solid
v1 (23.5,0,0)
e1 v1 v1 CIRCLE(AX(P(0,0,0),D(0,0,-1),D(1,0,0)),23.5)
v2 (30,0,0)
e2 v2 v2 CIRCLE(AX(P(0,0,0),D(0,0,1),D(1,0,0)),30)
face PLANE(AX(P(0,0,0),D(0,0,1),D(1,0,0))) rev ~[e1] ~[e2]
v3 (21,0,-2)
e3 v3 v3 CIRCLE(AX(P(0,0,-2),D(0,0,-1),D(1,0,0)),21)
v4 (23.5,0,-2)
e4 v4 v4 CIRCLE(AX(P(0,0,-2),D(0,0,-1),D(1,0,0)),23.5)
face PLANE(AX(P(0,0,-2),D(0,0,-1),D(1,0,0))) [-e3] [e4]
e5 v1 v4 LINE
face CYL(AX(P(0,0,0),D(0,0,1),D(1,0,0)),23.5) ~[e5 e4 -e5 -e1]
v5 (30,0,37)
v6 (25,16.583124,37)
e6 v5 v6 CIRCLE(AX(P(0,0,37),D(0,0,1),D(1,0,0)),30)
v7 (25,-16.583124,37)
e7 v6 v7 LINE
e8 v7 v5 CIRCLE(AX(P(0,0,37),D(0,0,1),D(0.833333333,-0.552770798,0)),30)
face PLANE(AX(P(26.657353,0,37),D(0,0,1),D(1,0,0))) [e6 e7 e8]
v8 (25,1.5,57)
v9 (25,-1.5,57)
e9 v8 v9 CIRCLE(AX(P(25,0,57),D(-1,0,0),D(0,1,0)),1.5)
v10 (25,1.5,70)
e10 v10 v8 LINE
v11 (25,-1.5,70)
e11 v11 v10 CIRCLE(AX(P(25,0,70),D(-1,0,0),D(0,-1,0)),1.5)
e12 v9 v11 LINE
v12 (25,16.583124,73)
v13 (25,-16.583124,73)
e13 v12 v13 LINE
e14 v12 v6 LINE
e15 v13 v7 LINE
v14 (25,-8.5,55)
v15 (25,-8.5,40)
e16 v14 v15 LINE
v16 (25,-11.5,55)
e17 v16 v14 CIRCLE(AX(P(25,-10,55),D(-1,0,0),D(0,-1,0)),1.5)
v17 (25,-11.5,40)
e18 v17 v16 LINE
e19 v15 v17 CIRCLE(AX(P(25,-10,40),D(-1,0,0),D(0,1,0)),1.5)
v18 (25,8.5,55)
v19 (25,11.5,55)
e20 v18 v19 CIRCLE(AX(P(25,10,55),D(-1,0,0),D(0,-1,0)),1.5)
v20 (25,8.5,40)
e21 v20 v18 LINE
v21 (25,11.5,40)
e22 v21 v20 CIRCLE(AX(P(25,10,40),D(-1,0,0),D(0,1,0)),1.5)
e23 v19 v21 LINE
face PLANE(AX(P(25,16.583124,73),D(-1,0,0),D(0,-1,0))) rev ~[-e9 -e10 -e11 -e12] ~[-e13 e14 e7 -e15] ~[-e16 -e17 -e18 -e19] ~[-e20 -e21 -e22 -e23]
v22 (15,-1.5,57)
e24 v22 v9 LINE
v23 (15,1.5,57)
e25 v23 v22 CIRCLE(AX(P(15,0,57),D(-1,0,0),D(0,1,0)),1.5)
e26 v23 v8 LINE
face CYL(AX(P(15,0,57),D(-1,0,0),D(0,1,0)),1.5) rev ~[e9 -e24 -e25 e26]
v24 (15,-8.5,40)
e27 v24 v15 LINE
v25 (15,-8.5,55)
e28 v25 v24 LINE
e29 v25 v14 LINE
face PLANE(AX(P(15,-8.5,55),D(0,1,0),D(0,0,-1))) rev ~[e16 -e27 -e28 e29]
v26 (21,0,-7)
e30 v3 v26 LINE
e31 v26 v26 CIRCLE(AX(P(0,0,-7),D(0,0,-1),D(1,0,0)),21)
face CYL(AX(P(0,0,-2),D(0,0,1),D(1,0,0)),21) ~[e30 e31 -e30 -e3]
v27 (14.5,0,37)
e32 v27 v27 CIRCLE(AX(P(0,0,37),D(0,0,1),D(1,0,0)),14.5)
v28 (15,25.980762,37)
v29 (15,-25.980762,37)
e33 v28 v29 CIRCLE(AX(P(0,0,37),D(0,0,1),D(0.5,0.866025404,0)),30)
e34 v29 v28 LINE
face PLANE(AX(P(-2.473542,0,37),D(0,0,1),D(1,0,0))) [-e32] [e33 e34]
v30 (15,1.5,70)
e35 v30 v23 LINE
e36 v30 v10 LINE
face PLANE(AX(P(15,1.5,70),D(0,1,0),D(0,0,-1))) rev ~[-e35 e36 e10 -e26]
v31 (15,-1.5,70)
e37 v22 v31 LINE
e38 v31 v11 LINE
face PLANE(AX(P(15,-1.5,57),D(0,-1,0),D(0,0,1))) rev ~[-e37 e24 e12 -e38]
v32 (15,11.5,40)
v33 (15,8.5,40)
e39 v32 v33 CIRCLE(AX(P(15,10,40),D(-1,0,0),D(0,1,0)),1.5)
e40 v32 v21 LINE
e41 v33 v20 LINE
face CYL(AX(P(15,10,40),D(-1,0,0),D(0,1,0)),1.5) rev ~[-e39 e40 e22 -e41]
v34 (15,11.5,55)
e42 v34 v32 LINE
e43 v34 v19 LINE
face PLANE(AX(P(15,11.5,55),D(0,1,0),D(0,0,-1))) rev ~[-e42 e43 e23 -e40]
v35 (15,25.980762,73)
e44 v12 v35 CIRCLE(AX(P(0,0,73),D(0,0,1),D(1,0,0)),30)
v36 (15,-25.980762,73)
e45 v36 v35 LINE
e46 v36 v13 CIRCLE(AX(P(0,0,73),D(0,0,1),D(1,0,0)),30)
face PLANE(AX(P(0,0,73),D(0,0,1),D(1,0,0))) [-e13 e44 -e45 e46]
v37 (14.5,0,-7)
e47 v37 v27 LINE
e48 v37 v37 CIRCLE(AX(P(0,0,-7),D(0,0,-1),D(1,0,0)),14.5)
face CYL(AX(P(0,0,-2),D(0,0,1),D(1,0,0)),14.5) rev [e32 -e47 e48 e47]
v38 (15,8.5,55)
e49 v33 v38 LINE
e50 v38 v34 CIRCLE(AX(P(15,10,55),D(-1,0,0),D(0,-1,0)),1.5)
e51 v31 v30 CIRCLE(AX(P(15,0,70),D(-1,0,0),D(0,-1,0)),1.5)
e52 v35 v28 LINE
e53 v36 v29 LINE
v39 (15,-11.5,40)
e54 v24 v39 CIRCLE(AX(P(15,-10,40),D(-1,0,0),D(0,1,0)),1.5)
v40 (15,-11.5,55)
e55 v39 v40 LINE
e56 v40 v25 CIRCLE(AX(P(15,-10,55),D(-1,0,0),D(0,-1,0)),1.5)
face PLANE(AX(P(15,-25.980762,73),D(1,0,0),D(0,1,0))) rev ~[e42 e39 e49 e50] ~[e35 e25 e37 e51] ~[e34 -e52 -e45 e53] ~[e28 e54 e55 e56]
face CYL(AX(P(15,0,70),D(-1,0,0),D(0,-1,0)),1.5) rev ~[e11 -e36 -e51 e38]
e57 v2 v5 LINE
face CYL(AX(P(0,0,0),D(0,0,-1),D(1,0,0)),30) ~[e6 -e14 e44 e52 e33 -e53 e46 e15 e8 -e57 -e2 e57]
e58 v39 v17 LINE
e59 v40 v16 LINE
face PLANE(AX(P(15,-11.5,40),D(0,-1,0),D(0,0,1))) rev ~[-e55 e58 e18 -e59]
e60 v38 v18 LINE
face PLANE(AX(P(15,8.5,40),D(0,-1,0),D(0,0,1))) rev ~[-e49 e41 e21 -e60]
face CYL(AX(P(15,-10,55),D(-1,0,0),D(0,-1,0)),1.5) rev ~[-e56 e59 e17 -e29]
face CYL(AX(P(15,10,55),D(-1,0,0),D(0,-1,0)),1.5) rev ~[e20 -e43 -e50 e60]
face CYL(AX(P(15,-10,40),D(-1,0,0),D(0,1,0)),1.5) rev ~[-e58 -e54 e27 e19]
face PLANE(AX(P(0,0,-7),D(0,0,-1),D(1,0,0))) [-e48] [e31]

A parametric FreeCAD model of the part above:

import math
import FreeCAD as App
import Part
import Sketcher
from FreeCAD import Vector
Q = App.Units.Quantity

doc = App.newDocument("Part")
body = doc.addObject("PartDesign::Body", "Body")

sketch1 = body.newObject("Sketcher::SketchObject", "Sketch")
sketch1.AttachmentSupport = (doc.getObject("XY_Plane"), [""])
sketch1.MapMode = "FlatFace"
sketch1.addGeometry(Part.Circle(Vector(0, 0, 0), Vector(0, 0, 1), 30), False)
sketch1.addGeometry(Part.Circle(Vector(0, 0, 0), Vector(0, 0, 1), 14), False)
sketch1.addConstraint(Sketcher.Constraint("Coincident", 0, 3, -1, 1))
sketch1.addConstraint(Sketcher.Constraint("Coincident", 1, 3, -1, 1))
sketch1.addConstraint(Sketcher.Constraint("Diameter", 0, Q("60 mm")))
sketch1.addConstraint(Sketcher.Constraint("Diameter", 1, Q("29 mm")))
pad1 = body.newObject("PartDesign::Pad", "Pad")
pad1.Profile = sketch1
pad1.Length = 73

sketch2 = body.newObject("Sketcher::SketchObject", "Sketch001")
sketch2.AttachmentSupport = (doc.getObject("XY_Plane"), [""])
sketch2.MapMode = "FlatFace"
sketch2.addGeometry(Part.Circle(Vector(0, 0, 0), Vector(0, 0, 1), 24), False)
sketch2.addGeometry(Part.Circle(Vector(0, 0, 0), Vector(0, 0, 1), 14), False)
sketch2.addConstraint(Sketcher.Constraint("Coincident", 0, 3, -1, 1))
sketch2.addConstraint(Sketcher.Constraint("Coincident", 1, 3, -1, 1))
sketch2.addConstraint(Sketcher.Constraint("Diameter", 0, Q("47 mm")))
sketch2.addConstraint(Sketcher.Constraint("Diameter", 1, Q("29 mm")))
pad2 = body.newObject("PartDesign::Pad", "Pad001")
pad2.Profile = sketch2
pad2.Length = 2
pad2.Reversed = True

sketch3 = body.newObject("Sketcher::SketchObject", "Sketch002")
sketch3.AttachmentSupport = (doc.getObject("XY_Plane"), [""])
sketch3.MapMode = "FlatFace"
sketch3.AttachmentOffset = App.Placement(Vector(0, 0, -2), App.Rotation())
sketch3.addGeometry(Part.Circle(Vector(0, 0, 0), Vector(0, 0, 1), 21), False)
sketch3.addGeometry(Part.Circle(Vector(0, 0, 0), Vector(0, 0, 1), 14), False)
sketch3.addConstraint(Sketcher.Constraint("Coincident", 0, 3, -1, 1))
sketch3.addConstraint(Sketcher.Constraint("Coincident", 1, 3, -1, 1))
sketch3.addConstraint(Sketcher.Constraint("Diameter", 0, Q("42 mm")))
sketch3.addConstraint(Sketcher.Constraint("Diameter", 1, Q("29 mm")))
pad3 = body.newObject("PartDesign::Pad", "Pad002")
pad3.Profile = sketch3
pad3.Length = 5
pad3.Reversed = True

sketch4 = body.newObject("Sketcher::SketchObject", "Sketch003")
sketch4.AttachmentSupport = (doc.getObject("XY_Plane"), [""])
sketch4.MapMode = "FlatFace"
sketch4.AttachmentOffset = App.Placement(Vector(0, 0, 73), App.Rotation())
sketch4.addGeometry(Part.LineSegment(Vector(15, -26, 0), Vector(15, 26, 0)), False)
sketch4.addGeometry(Part.ArcOfCircle(Part.Circle(Vector(0, 0, 0), Vector(0, 0, 1), 30), math.radians(60), math.radians(300)), False)
sketch4.addGeometry(Part.Circle(Vector(0, 0, 0), Vector(0, 0, 1), 14), False)
sketch4.addGeometry(Part.ArcOfCircle(Part.Circle(Vector(0, 0, 0), Vector(0, 0, 1), 30), math.radians(0), math.radians(34)), False)
sketch4.addGeometry(Part.LineSegment(Vector(25, 17, 0), Vector(25, -17, 0)), False)
sketch4.addGeometry(Part.ArcOfCircle(Part.Circle(Vector(0, 0, 0), Vector(0, 0, 1), 30), math.radians(-34), math.radians(0)), False)
sketch4.addConstraint(Sketcher.Constraint("Coincident", 0, 1, 1, 2))
sketch4.addConstraint(Sketcher.Constraint("Coincident", 1, 1, 0, 2))
sketch4.addConstraint(Sketcher.Constraint("Coincident", 3, 2, 4, 1))
sketch4.addConstraint(Sketcher.Constraint("Coincident", 4, 2, 5, 1))
sketch4.addConstraint(Sketcher.Constraint("Tangent", 5, 2, 3, 1))
sketch4.addConstraint(Sketcher.Constraint("Vertical", 0))
sketch4.addConstraint(Sketcher.Constraint("Vertical", 4))
sketch4.addConstraint(Sketcher.Constraint("Coincident", 1, 3, -1, 1))
sketch4.addConstraint(Sketcher.Constraint("Coincident", 2, 3, -1, 1))
sketch4.addConstraint(Sketcher.Constraint("Coincident", 3, 3, -1, 1))
sketch4.addConstraint(Sketcher.Constraint("Equal", 1, 3))
sketch4.addConstraint(Sketcher.Constraint("Equal", 3, 5))
sketch4.addConstraint(Sketcher.Constraint("PointOnObject", 5, 2, -1))
sketch4.addConstraint(Sketcher.Constraint("Diameter", 2, Q("29 mm")))
sketch4.addConstraint(Sketcher.Constraint("Radius", 1, Q("30 mm")))
sketch4.addConstraint(Sketcher.Constraint("DistanceX", -1, 1, 0, 1, Q("15 mm")))
sketch4.addConstraint(Sketcher.Constraint("DistanceX", -1, 1, 3, 2, Q("25 mm")))
pocket1 = body.newObject("PartDesign::Pocket", "Pocket")
pocket1.Profile = sketch4
pocket1.Length = 36

sketch5 = body.newObject("Sketcher::SketchObject", "Sketch004")
sketch5.AttachmentSupport = (doc.getObject("YZ_Plane"), [""])
sketch5.MapMode = "FlatFace"
sketch5.AttachmentOffset = App.Placement(Vector(0, 0, 15), App.Rotation())
sketch5.addGeometry(Part.LineSegment(Vector(11.5, 55, 0), Vector(11.5, 40, 0)), False)
sketch5.addGeometry(Part.ArcOfCircle(Part.Circle(Vector(10, 40, 0), Vector(0, 0, 1), 1.5), math.radians(180), math.radians(360)), False)
sketch5.addGeometry(Part.LineSegment(Vector(8.5, 40, 0), Vector(8.5, 55, 0)), False)
sketch5.addGeometry(Part.ArcOfCircle(Part.Circle(Vector(10, 55, 0), Vector(0, 0, 1), 1.5), math.radians(0), math.radians(180)), False)
sketch5.addGeometry(Part.LineSegment(Vector(-8.5, 55, 0), Vector(-8.5, 40, 0)), False)
sketch5.addGeometry(Part.ArcOfCircle(Part.Circle(Vector(-10, 40, 0), Vector(0, 0, 1), 1.5), math.radians(180), math.radians(360)), False)
sketch5.addGeometry(Part.LineSegment(Vector(-11.5, 40, 0), Vector(-11.5, 55, 0)), False)
sketch5.addGeometry(Part.ArcOfCircle(Part.Circle(Vector(-10, 55, 0), Vector(0, 0, 1), 1.5), math.radians(0), math.radians(180)), False)
sketch5.addGeometry(Part.LineSegment(Vector(1.5, 70, 0), Vector(1.5, 57, 0)), False)
sketch5.addGeometry(Part.ArcOfCircle(Part.Circle(Vector(0, 57, 0), Vector(0, 0, 1), 1.5), math.radians(180), math.radians(360)), False)
sketch5.addGeometry(Part.LineSegment(Vector(-1.5, 57, 0), Vector(-1.5, 70, 0)), False)
sketch5.addGeometry(Part.ArcOfCircle(Part.Circle(Vector(0, 70, 0), Vector(0, 0, 1), 1.5), math.radians(0), math.radians(180)), False)
sketch5.addConstraint(Sketcher.Constraint("Tangent", 0, 2, 1, 2))
sketch5.addConstraint(Sketcher.Constraint("Tangent", 1, 1, 2, 1))
sketch5.addConstraint(Sketcher.Constraint("Tangent", 2, 2, 3, 2))
sketch5.addConstraint(Sketcher.Constraint("Tangent", 3, 1, 0, 1))
sketch5.addConstraint(Sketcher.Constraint("Tangent", 4, 2, 5, 2))
sketch5.addConstraint(Sketcher.Constraint("Tangent", 5, 1, 6, 1))
sketch5.addConstraint(Sketcher.Constraint("Tangent", 6, 2, 7, 2))
sketch5.addConstraint(Sketcher.Constraint("Tangent", 7, 1, 4, 1))
sketch5.addConstraint(Sketcher.Constraint("Tangent", 8, 2, 9, 2))
sketch5.addConstraint(Sketcher.Constraint("Tangent", 9, 1, 10, 1))
sketch5.addConstraint(Sketcher.Constraint("Tangent", 10, 2, 11, 2))
sketch5.addConstraint(Sketcher.Constraint("Tangent", 11, 1, 8, 1))
sketch5.addConstraint(Sketcher.Constraint("Vertical", 0))
sketch5.addConstraint(Sketcher.Constraint("Vertical", 2))
sketch5.addConstraint(Sketcher.Constraint("Vertical", 4))
sketch5.addConstraint(Sketcher.Constraint("Vertical", 6))
sketch5.addConstraint(Sketcher.Constraint("Vertical", 8))
sketch5.addConstraint(Sketcher.Constraint("Vertical", 10))
sketch5.addConstraint(Sketcher.Constraint("Equal", 3, 5))
sketch5.addConstraint(Sketcher.Constraint("Equal", 7, 9))
sketch5.addConstraint(Sketcher.Constraint("Symmetric", 1, 3, 5, 3, -2))
sketch5.addConstraint(Sketcher.Constraint("PointOnObject", 9, 3, -2))
sketch5.addConstraint(Sketcher.Constraint("Horizontal", 3, 3, 7, 3))
sketch5.addConstraint(Sketcher.Constraint("Radius", 1, Q("1.5 mm")))
sketch5.addConstraint(Sketcher.Constraint("DistanceY", 0, 2, 0, 1, Q("15 mm")))
sketch5.addConstraint(Sketcher.Constraint("DistanceY", 8, 2, 8, 1, Q("13 mm")))
sketch5.addConstraint(Sketcher.Constraint("DistanceX", -1, 1, 1, 3, Q("10 mm")))
sketch5.addConstraint(Sketcher.Constraint("DistanceY", -1, 1, 1, 3, Q("40 mm")))
sketch5.addConstraint(Sketcher.Constraint("DistanceY", -1, 1, 9, 3, Q("57 mm")))
pocket2 = body.newObject("PartDesign::Pocket", "Pocket001")
pocket2.Profile = sketch5
pocket2.Type = "ThroughAll"
pocket2.Reversed = True

doc.recompute()
